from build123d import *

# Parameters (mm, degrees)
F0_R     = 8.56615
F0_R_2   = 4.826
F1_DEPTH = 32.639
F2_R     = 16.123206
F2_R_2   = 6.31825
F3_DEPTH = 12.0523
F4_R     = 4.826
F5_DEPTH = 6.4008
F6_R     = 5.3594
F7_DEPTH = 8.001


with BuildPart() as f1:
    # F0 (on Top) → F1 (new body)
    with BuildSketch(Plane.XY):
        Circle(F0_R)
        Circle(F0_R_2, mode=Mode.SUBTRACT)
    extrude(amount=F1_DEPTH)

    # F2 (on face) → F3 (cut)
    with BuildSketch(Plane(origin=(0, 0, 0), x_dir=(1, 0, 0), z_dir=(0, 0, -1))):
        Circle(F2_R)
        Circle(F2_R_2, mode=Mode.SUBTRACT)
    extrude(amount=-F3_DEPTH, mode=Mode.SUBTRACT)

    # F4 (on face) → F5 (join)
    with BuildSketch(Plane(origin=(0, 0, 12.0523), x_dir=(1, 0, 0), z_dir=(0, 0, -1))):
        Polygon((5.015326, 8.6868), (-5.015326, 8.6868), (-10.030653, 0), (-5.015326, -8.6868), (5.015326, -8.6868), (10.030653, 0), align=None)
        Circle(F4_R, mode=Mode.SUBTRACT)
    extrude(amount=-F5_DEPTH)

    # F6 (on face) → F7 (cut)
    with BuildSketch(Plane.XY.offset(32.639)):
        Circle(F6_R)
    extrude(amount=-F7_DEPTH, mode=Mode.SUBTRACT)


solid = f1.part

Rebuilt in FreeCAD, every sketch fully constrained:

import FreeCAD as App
import Part
import Sketcher

V = App.Vector
Q = App.Units.Quantity


def add_polygon(sketch, points):
    """Adds a closed chain of lines whose ends are joined by coincident constraints."""
    first, n = sketch.GeometryCount, len(points)
    for a, b in zip(points, points[1:] + points[:1]):
        sketch.addGeometry(Part.LineSegment(App.Vector(*a, 0), App.Vector(*b, 0)), False)
    for i in range(n):
        sketch.addConstraint(Sketcher.Constraint("Coincident", first + i, 2, first + (i + 1) % n, 1))

doc = App.newDocument("Part")
params = doc.addObject("Spreadsheet::Sheet", "Params")
for row, (alias, value) in enumerate([
    ("sketch1_diameter", "0.38 in"),
    ("pad1_length", "1.285 in"),
    ("pocket1_length", "0.4745 in"),
    ("sketch3_diameter", "0.38 in"),
    ("pad2_length", "0.252 in"),
    ("sketch4_diameter", "0.422 in"),
    ("pocket2_length", "0.315 in"),
], start=1):
    params.set(f"A{row}", alias)
    params.set(f"B{row}", "=" + value)
    params.setAlias(f"B{row}", alias)

body = doc.addObject("PartDesign::Body", "Body")

# Sketch on XY plane
sketch1 = body.newObject("Sketcher::SketchObject", "Sketch")
sketch1.AttachmentSupport = (doc.getObject("XY_Plane"), [""])
sketch1.MapMode = "FlatFace"
sketch1.addGeometry(Part.Circle(V(0, 0, 0), V(0, 0, 1), 8.6), False)
sketch1.addGeometry(Part.Circle(V(0, 0, 0), V(0, 0, 1), 4.8), False)
sketch1.addConstraint(Sketcher.Constraint("Coincident", 0, 3, -1, 1))
sketch1.addConstraint(Sketcher.Constraint("Coincident", 1, 3, -1, 1))
sketch1.addConstraint(Sketcher.Constraint("Diameter", 1, Q("0.38 in")))
sketch1.addConstraint(Sketcher.Constraint("Diameter", 0, Q("0.6745 in")))
sketch1.setExpression("Constraints[2]", "Params.sketch1_diameter")
pad1 = body.newObject("PartDesign::Pad", "Pad")
pad1.Profile = sketch1
pad1.setExpression("Length", "Params.pad1_length")

# Sketch on XY plane
sketch2 = body.newObject("Sketcher::SketchObject", "Sketch001")
sketch2.AttachmentSupport = (doc.getObject("XY_Plane"), [""])
sketch2.MapMode = "FlatFace"
sketch2.addGeometry(Part.Circle(V(0, 0, 0), V(0, 0, 1), 16), False)
sketch2.addGeometry(Part.Circle(V(0, 0, 0), V(0, 0, 1), 6), False)
sketch2.addConstraint(Sketcher.Constraint("Coincident", 0, 3, -1, 1))
sketch2.addConstraint(Sketcher.Constraint("Coincident", 1, 3, -1, 1))
sketch2.addConstraint(Sketcher.Constraint("Diameter", 1, Q("0.4975 in")))
sketch2.addConstraint(Sketcher.Constraint("Diameter", 0, Q("32.246412 mm")))
pocket1 = body.newObject("PartDesign::Pocket", "Pocket")
pocket1.Profile = sketch2
pocket1.setExpression("Length", "Params.pocket1_length")
pocket1.Reversed = True

# Sketch on XY plane
sketch3 = body.newObject("Sketcher::SketchObject", "Sketch002")
sketch3.AttachmentSupport = (doc.getObject("XY_Plane"), [""])
sketch3.MapMode = "FlatFace"
sketch3.AttachmentOffset = App.Placement(V(0, 0, 0.4745 * 25.4), App.Rotation())
add_polygon(sketch3, [(5, -8.7), (-5, -8.7), (-10, 0), (-5, 8.7), (5, 8.7), (10, 0)])  # lines 0-5
sketch3.addGeometry(Part.Circle(V(0, 0, 0), V(0, 0, 1), 4.8), False)  # 6
sketch3.addConstraint(Sketcher.Constraint("Horizontal", 0))
sketch3.addConstraint(Sketcher.Constraint("Horizontal", 3))
sketch3.addConstraint(Sketcher.Constraint("Coincident", 6, 3, -1, 1))
sketch3.addConstraint(Sketcher.Constraint("Symmetric", 0, 2, 3, 2, -1, 1))
sketch3.addConstraint(Sketcher.Constraint("Symmetric", 1, 2, 4, 2, -1, 1))
sketch3.addConstraint(Sketcher.Constraint("PointOnObject", 1, 2, -1))
sketch3.addConstraint(Sketcher.Constraint("Parallel", 2, 5))
sketch3.addConstraint(Sketcher.Constraint("Vertical", 0, 2, 2, 2))
sketch3.addConstraint(Sketcher.Constraint("Diameter", 6, Q("0.38 in")))
sketch3.addConstraint(Sketcher.Constraint("Angle", 1, Q("120.000003 deg")))
sketch3.addConstraint(Sketcher.Constraint("DistanceY", 0, 2, -1, 1, Q("0.342 in")))
sketch3.addConstraint(Sketcher.Constraint("DistanceX", 0, 2, 0, 1, Q("10.030652 mm")))
sketch3.setExpression("Constraints[14]", "Params.sketch3_diameter")
pad2 = body.newObject("PartDesign::Pad", "Pad001")
pad2.Profile = sketch3
pad2.setExpression("Length", "Params.pad2_length")

# Sketch on XY plane
sketch4 = body.newObject("Sketcher::SketchObject", "Sketch003")
sketch4.AttachmentSupport = (doc.getObject("XY_Plane"), [""])
sketch4.MapMode = "FlatFace"
sketch4.AttachmentOffset = App.Placement(V(0, 0, 1.285 * 25.4), App.Rotation())
sketch4.addGeometry(Part.Circle(V(0, 0, 0), V(0, 0, 1), 5), False)
sketch4.addConstraint(Sketcher.Constraint("Coincident", 0, 3, -1, 1))
sketch4.addConstraint(Sketcher.Constraint("Diameter", 0, Q("0.422 in")))
sketch4.setExpression("Constraints[1]", "Params.sketch4_diameter")
pocket2 = body.newObject("PartDesign::Pocket", "Pocket001")
pocket2.Profile = sketch4
pocket2.setExpression("Length", "Params.pocket2_length")

doc.recompute()
